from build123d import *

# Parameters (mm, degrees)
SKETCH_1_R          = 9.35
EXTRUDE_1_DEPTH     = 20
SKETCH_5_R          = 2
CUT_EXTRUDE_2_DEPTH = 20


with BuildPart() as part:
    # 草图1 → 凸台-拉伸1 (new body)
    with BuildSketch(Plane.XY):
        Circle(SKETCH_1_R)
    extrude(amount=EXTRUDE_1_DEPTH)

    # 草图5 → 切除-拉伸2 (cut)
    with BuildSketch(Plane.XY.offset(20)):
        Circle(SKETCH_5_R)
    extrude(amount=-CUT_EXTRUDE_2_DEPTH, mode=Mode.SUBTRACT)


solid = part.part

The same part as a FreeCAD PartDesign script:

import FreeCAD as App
import Part
import Sketcher
from FreeCAD import Vector

doc = App.newDocument("Part")
params = doc.addObject("Spreadsheet::Sheet", "Params")
for row, (alias, value) in enumerate([
    ("sketch1_diameter", "18.7 mm"),
    ("pad1_length", "20 mm"),
    ("sketch2_diameter", "4 mm"),
    ("pocket1_length", "20 mm"),
], start=1):
    params.set(f"A{row}", alias)
    params.set(f"B{row}", "=" + value)
    params.setAlias(f"B{row}", alias)

body = doc.addObject("PartDesign::Body", "Body")

sketch1 = doc.addObject("Sketcher::SketchObject", "Sketch")
body.addObject(sketch1)
sketch1.AttachmentSupport = (doc.XY_Plane, [""])
sketch1.MapMode = "FlatFace"
sketch1.addGeometry(Part.Circle(Vector(0, 0, 0), Vector(0, 0, 1), 9.35), False)
sketch1.addConstraint(Sketcher.Constraint("Coincident", 0, 3, -1, 1))
sketch1.addConstraint(Sketcher.Constraint("Diameter", 0, 18.7))
sketch1.setExpression("Constraints[1]", "Params.sketch1_diameter")
pad1 = doc.addObject("PartDesign::Pad", "Pad")
body.addObject(pad1)
pad1.Profile = sketch1
pad1.setExpression("Length", "Params.pad1_length")

sketch2 = doc.addObject("Sketcher::SketchObject", "Sketch001")
body.addObject(sketch2)
sketch2.AttachmentSupport = (doc.XY_Plane, [""])
sketch2.MapMode = "FlatFace"
sketch2.AttachmentOffset = App.Placement(Vector(0, 0, 20), App.Rotation())
sketch2.addGeometry(Part.Circle(Vector(0, 0, 0), Vector(0, 0, 1), 2), False)
sketch2.addConstraint(Sketcher.Constraint("Coincident", 0, 3, -1, 1))
sketch2.addConstraint(Sketcher.Constraint("Diameter", 0, 4.0))
sketch2.setExpression("Constraints[1]", "Params.sketch2_diameter")
pocket1 = doc.addObject("PartDesign::Pocket", "Pocket")
body.addObject(pocket1)
pocket1.Profile = sketch2
pocket1.setExpression("Length", "Params.pocket1_length")

doc.recompute()
